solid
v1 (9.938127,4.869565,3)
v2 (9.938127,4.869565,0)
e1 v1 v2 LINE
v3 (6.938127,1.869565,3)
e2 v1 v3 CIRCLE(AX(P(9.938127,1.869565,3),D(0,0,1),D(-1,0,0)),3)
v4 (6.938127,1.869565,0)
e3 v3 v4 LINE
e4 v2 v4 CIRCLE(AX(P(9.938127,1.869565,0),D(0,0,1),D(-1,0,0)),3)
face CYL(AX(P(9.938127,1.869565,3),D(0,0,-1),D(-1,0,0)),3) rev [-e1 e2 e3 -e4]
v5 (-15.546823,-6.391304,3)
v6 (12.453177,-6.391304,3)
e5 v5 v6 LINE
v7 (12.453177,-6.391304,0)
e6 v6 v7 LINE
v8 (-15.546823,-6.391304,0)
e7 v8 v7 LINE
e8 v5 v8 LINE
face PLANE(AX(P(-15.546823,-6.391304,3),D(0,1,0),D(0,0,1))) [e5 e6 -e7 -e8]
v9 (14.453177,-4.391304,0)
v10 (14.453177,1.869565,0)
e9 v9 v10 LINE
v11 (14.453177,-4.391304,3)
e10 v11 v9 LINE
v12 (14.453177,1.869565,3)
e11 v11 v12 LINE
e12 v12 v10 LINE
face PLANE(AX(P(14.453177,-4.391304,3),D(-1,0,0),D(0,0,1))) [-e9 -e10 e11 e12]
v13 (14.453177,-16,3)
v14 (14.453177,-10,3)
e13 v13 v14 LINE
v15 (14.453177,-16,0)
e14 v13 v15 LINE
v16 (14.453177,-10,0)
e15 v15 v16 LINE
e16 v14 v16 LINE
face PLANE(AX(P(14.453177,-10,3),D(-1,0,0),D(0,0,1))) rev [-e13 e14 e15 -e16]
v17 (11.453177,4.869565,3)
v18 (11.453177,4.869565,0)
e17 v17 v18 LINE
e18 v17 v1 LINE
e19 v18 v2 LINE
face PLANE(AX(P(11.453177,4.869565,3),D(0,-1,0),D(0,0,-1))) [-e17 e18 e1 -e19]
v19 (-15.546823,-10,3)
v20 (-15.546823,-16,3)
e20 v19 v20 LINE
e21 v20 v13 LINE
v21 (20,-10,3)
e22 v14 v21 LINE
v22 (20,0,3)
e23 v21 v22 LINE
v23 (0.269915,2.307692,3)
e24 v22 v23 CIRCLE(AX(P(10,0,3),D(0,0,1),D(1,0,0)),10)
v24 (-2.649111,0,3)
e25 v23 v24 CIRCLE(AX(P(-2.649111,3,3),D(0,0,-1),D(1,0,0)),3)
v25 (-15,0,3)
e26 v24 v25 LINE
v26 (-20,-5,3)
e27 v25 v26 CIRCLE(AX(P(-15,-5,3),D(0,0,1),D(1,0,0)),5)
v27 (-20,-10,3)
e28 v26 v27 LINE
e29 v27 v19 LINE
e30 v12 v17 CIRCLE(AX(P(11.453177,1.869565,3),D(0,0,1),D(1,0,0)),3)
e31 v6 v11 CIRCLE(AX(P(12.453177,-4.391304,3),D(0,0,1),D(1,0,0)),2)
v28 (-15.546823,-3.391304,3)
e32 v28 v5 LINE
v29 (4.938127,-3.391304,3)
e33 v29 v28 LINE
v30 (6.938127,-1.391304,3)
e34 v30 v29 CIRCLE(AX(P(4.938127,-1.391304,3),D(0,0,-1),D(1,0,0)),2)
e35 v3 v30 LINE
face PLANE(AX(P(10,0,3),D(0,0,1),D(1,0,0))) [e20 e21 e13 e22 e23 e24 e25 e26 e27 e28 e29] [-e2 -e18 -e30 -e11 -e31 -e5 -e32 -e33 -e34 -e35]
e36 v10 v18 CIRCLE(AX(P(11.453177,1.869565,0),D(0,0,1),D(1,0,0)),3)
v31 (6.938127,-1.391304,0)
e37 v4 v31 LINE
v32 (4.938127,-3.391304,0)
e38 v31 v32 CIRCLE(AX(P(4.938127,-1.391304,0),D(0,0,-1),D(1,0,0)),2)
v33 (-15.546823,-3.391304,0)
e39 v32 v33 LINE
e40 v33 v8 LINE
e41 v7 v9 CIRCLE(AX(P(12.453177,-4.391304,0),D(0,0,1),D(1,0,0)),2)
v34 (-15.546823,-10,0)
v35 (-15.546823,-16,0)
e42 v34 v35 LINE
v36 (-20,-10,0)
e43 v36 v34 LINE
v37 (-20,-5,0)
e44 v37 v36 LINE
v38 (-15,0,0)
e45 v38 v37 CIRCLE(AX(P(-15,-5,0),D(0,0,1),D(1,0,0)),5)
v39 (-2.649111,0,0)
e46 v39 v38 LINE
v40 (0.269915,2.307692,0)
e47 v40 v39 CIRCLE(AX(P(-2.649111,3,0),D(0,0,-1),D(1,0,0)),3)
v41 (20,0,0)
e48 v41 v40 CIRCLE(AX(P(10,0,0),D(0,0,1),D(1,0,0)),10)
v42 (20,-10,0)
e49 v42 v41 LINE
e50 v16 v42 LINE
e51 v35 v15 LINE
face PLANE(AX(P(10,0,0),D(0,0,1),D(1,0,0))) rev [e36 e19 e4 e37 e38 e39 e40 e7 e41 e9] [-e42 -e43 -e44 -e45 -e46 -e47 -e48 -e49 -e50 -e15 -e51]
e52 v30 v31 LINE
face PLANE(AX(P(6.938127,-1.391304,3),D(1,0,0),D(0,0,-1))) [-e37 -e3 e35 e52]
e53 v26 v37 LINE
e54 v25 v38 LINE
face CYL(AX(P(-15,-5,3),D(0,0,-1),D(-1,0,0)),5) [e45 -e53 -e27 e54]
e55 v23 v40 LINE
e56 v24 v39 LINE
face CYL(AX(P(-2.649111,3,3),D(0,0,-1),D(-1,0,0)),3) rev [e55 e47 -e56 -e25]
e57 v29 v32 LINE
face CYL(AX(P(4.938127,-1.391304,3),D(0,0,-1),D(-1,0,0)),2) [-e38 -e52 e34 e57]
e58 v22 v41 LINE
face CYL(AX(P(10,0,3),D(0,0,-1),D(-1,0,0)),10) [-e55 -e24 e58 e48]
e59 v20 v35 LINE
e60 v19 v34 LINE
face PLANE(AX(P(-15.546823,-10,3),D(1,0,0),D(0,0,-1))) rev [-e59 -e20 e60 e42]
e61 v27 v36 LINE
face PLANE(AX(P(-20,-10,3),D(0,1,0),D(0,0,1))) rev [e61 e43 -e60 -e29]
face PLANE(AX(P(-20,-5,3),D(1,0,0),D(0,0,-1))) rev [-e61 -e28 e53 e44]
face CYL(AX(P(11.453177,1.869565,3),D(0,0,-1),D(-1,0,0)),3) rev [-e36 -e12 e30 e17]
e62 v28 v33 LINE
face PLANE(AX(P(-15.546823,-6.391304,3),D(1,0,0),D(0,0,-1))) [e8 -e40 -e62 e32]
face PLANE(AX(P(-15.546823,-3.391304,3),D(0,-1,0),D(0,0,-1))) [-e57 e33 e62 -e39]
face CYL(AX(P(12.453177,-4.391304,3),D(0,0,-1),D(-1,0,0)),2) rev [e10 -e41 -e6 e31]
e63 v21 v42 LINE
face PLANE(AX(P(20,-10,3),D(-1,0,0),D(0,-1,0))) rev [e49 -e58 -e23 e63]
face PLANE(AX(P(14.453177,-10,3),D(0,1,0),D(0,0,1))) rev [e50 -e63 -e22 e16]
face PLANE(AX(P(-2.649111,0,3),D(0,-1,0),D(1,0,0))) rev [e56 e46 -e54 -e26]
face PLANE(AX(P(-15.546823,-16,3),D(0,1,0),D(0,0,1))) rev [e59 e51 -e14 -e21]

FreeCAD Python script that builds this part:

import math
import FreeCAD as App
import Part
import Sketcher

doc = App.newDocument("Part")
params = doc.addObject("Spreadsheet::Sheet", "Params")
for row, (alias, value) in enumerate([
    ("sketch1_radius", "5 mm"),
    ("sketch1_radius2", "10 mm"),
    ("sketch1_radius3", "3 mm"),
    ("sketch1_radius4", "2 mm"),
    ("sketch1_width", "30 mm"),
    ("pad1_length", "3 mm"),
], start=1):
    params.set(f"A{row}", alias)
    params.set(f"B{row}", "=" + value)
    params.setAlias(f"B{row}", alias)

body = doc.addObject("PartDesign::Body", "Body")

# Sketch on XY plane
sketch1 = body.newObject("Sketcher::SketchObject", "Sketch")
sketch1.AttachmentSupport = (doc.getObject("XY_Plane"), [""])
sketch1.MapMode = "FlatFace"
sketch1.addGeometry(Part.LineSegment(App.Vector(-2.6, 0, 0), App.Vector(-15, 0, 0)), False)
sketch1.addGeometry(Part.ArcOfCircle(Part.Circle(App.Vector(-15, -5, 0), App.Vector(0, 0, 1), 5), math.radians(90), math.radians(180)), False)
sketch1.addGeometry(Part.LineSegment(App.Vector(-20, -5, 0), App.Vector(-20, -10, 0)), False)
sketch1.addGeometry(Part.LineSegment(App.Vector(-20, -10, 0), App.Vector(-15.5, -10, 0)), False)
sketch1.addGeometry(Part.LineSegment(App.Vector(-15.5, -10, 0), App.Vector(-15.5, -16, 0)), False)
sketch1.addGeometry(Part.LineSegment(App.Vector(-15.5, -16, 0), App.Vector(14.5, -16, 0)), False)
sketch1.addGeometry(Part.LineSegment(App.Vector(14.5, -16, 0), App.Vector(14.5, -10, 0)), False)
sketch1.addGeometry(Part.LineSegment(App.Vector(14.5, -10, 0), App.Vector(20, -10, 0)), False)
sketch1.addGeometry(Part.LineSegment(App.Vector(20, -10, 0), App.Vector(20, 0, 0)), False)
sketch1.addGeometry(Part.ArcOfCircle(Part.Circle(App.Vector(10, 0, 0), App.Vector(0, 0, 1), 10), math.radians(0), math.radians(167)), False)
sketch1.addGeometry(Part.ArcOfCircle(Part.Circle(App.Vector(-2.6, 3, 0), App.Vector(0, 0, 1), 3), math.radians(-90), math.radians(-13)), False)
sketch1.addGeometry(Part.LineSegment(App.Vector(12.5, -6.4, 0), App.Vector(-15.5, -6.4, 0)), False)
sketch1.addGeometry(Part.LineSegment(App.Vector(-15.5, -6.4, 0), App.Vector(-15.5, -3.4, 0)), False)
sketch1.addGeometry(Part.LineSegment(App.Vector(-15.5, -3.4, 0), App.Vector(4.9, -3.4, 0)), False)
sketch1.addGeometry(Part.ArcOfCircle(Part.Circle(App.Vector(4.9, -1.4, 0), App.Vector(0, 0, 1), 2), math.radians(-90), math.radians(0)), False)
sketch1.addGeometry(Part.LineSegment(App.Vector(6.9, -1.4, 0), App.Vector(6.9, 1.9, 0)), False)
sketch1.addGeometry(Part.ArcOfCircle(Part.Circle(App.Vector(9.9, 1.9, 0), App.Vector(0, 0, 1), 3), math.radians(90), math.radians(180)), False)
sketch1.addGeometry(Part.LineSegment(App.Vector(9.9, 4.9, 0), App.Vector(11.5, 4.9, 0)), False)
sketch1.addGeometry(Part.ArcOfCircle(Part.Circle(App.Vector(11.5, 1.9, 0), App.Vector(0, 0, 1), 3), math.radians(0), math.radians(90)), False)
sketch1.addGeometry(Part.LineSegment(App.Vector(14.5, 1.9, 0), App.Vector(14.5, -4.4, 0)), False)
sketch1.addGeometry(Part.ArcOfCircle(Part.Circle(App.Vector(12.5, -4.4, 0), App.Vector(0, 0, 1), 2), math.radians(-90), math.radians(0)), False)
sketch1.addConstraint(Sketcher.Constraint("Tangent", 0, 2, 1, 1))
sketch1.addConstraint(Sketcher.Constraint("Tangent", 1, 2, 2, 1))
sketch1.addConstraint(Sketcher.Constraint("Coincident", 2, 2, 3, 1))
sketch1.addConstraint(Sketcher.Constraint("Coincident", 3, 2, 4, 1))
sketch1.addConstraint(Sketcher.Constraint("Coincident", 4, 2, 5, 1))
sketch1.addConstraint(Sketcher.Constraint("Coincident", 5, 2, 6, 1))
sketch1.addConstraint(Sketcher.Constraint("Coincident", 6, 2, 7, 1))
sketch1.addConstraint(Sketcher.Constraint("Coincident", 7, 2, 8, 1))
sketch1.addConstraint(Sketcher.Constraint("Tangent", 8, 2, 9, 1))
sketch1.addConstraint(Sketcher.Constraint("Tangent", 9, 2, 10, 2))
sketch1.addConstraint(Sketcher.Constraint("Tangent", 10, 1, 0, 1))
sketch1.addConstraint(Sketcher.Constraint("Coincident", 11, 2, 12, 1))
sketch1.addConstraint(Sketcher.Constraint("Coincident", 12, 2, 13, 1))
sketch1.addConstraint(Sketcher.Constraint("Tangent", 13, 2, 14, 1))
sketch1.addConstraint(Sketcher.Constraint("Tangent", 14, 2, 15, 1))
sketch1.addConstraint(Sketcher.Constraint("Tangent", 15, 2, 16, 2))
sketch1.addConstraint(Sketcher.Constraint("Tangent", 16, 1, 17, 1))
sketch1.addConstraint(Sketcher.Constraint("Tangent", 17, 2, 18, 2))
sketch1.addConstraint(Sketcher.Constraint("Tangent", 18, 1, 19, 1))
sketch1.addConstraint(Sketcher.Constraint("Tangent", 19, 2, 20, 2))
sketch1.addConstraint(Sketcher.Constraint("Tangent", 20, 1, 11, 1))
sketch1.addConstraint(Sketcher.Constraint("Horizontal", 0))
sketch1.addConstraint(Sketcher.Constraint("Vertical", 2))
sketch1.addConstraint(Sketcher.Constraint("Horizontal", 3))
sketch1.addConstraint(Sketcher.Constraint("Vertical", 4))
sketch1.addConstraint(Sketcher.Constraint("Horizontal", 5))
sketch1.addConstraint(Sketcher.Constraint("Vertical", 6))
sketch1.addConstraint(Sketcher.Constraint("Horizontal", 7))
sketch1.addConstraint(Sketcher.Constraint("Vertical", 8))
sketch1.addConstraint(Sketcher.Constraint("Horizontal", 11))
sketch1.addConstraint(Sketcher.Constraint("Vertical", 12))
sketch1.addConstraint(Sketcher.Constraint("Horizontal", 13))
sketch1.addConstraint(Sketcher.Constraint("Vertical", 15))
sketch1.addConstraint(Sketcher.Constraint("Horizontal", 17))
sketch1.addConstraint(Sketcher.Constraint("Vertical", 19))
sketch1.addConstraint(Sketcher.Constraint("Equal", 10, 16))
sketch1.addConstraint(Sketcher.Constraint("Equal", 16, 18))
sketch1.addConstraint(Sketcher.Constraint("Equal", 14, 20))
sketch1.addConstraint(Sketcher.Constraint("Symmetric", 2, 2, 7, 2, -2))
sketch1.addConstraint(Sketcher.Constraint("PointOnObject", 9, 3, -1))
sketch1.addConstraint(Sketcher.Constraint("PointOnObject", 0, 2, -1))
sketch1.addConstraint(Sketcher.Constraint("Vertical", 4, 2, 11, 2))
sketch1.addConstraint(Sketcher.Constraint("Vertical", 6, 2, 18, 1))
sketch1.addConstraint(Sketcher.Constraint("Radius", 1, 5.0))
sketch1.addConstraint(Sketcher.Constraint("Radius", 9, 10.0))
sketch1.addConstraint(Sketcher.Constraint("Radius", 10, 3.0))
sketch1.addConstraint(Sketcher.Constraint("Radius", 14, 2.0))
sketch1.addConstraint(Sketcher.Constraint("DistanceX", 5, 1, 5, 2, 30.0))
sketch1.addConstraint(Sketcher.Constraint("DistanceY", 2, 2, 2, 1, 5.0))
sketch1.addConstraint(Sketcher.Constraint("DistanceY", 4, 2, 4, 1, 6.0))
sketch1.addConstraint(Sketcher.Constraint("DistanceY", 12, 1, 12, 2, 3.0))
sketch1.addConstraint(Sketcher.Constraint("DistanceX", 1, 3, -1, 1, 15.0))
sketch1.addConstraint(Sketcher.Constraint("DistanceX", 13, 1, 13, 2, 20.48495))
sketch1.addConstraint(Sketcher.Constraint("DistanceY", 15, 1, 15, 2, 3.26087))
sketch1.addConstraint(Sketcher.Constraint("DistanceX", 3, 1, 3, 2, 4.453177))
sketch1.addConstraint(Sketcher.Constraint("DistanceY", 14, 3, -1, 1, 1.391304))
sketch1.setExpression("Constraints[43]", "Params.sketch1_radius")
sketch1.setExpression("Constraints[44]", "Params.sketch1_radius2")
sketch1.setExpression("Constraints[45]", "Params.sketch1_radius3")
sketch1.setExpression("Constraints[46]", "Params.sketch1_radius4")
sketch1.setExpression("Constraints[47]", "Params.sketch1_width")
pad1 = body.newObject("PartDesign::Pad", "Pad")
pad1.Profile = sketch1
pad1.setExpression("Length", "Params.pad1_length")

doc.recompute()
